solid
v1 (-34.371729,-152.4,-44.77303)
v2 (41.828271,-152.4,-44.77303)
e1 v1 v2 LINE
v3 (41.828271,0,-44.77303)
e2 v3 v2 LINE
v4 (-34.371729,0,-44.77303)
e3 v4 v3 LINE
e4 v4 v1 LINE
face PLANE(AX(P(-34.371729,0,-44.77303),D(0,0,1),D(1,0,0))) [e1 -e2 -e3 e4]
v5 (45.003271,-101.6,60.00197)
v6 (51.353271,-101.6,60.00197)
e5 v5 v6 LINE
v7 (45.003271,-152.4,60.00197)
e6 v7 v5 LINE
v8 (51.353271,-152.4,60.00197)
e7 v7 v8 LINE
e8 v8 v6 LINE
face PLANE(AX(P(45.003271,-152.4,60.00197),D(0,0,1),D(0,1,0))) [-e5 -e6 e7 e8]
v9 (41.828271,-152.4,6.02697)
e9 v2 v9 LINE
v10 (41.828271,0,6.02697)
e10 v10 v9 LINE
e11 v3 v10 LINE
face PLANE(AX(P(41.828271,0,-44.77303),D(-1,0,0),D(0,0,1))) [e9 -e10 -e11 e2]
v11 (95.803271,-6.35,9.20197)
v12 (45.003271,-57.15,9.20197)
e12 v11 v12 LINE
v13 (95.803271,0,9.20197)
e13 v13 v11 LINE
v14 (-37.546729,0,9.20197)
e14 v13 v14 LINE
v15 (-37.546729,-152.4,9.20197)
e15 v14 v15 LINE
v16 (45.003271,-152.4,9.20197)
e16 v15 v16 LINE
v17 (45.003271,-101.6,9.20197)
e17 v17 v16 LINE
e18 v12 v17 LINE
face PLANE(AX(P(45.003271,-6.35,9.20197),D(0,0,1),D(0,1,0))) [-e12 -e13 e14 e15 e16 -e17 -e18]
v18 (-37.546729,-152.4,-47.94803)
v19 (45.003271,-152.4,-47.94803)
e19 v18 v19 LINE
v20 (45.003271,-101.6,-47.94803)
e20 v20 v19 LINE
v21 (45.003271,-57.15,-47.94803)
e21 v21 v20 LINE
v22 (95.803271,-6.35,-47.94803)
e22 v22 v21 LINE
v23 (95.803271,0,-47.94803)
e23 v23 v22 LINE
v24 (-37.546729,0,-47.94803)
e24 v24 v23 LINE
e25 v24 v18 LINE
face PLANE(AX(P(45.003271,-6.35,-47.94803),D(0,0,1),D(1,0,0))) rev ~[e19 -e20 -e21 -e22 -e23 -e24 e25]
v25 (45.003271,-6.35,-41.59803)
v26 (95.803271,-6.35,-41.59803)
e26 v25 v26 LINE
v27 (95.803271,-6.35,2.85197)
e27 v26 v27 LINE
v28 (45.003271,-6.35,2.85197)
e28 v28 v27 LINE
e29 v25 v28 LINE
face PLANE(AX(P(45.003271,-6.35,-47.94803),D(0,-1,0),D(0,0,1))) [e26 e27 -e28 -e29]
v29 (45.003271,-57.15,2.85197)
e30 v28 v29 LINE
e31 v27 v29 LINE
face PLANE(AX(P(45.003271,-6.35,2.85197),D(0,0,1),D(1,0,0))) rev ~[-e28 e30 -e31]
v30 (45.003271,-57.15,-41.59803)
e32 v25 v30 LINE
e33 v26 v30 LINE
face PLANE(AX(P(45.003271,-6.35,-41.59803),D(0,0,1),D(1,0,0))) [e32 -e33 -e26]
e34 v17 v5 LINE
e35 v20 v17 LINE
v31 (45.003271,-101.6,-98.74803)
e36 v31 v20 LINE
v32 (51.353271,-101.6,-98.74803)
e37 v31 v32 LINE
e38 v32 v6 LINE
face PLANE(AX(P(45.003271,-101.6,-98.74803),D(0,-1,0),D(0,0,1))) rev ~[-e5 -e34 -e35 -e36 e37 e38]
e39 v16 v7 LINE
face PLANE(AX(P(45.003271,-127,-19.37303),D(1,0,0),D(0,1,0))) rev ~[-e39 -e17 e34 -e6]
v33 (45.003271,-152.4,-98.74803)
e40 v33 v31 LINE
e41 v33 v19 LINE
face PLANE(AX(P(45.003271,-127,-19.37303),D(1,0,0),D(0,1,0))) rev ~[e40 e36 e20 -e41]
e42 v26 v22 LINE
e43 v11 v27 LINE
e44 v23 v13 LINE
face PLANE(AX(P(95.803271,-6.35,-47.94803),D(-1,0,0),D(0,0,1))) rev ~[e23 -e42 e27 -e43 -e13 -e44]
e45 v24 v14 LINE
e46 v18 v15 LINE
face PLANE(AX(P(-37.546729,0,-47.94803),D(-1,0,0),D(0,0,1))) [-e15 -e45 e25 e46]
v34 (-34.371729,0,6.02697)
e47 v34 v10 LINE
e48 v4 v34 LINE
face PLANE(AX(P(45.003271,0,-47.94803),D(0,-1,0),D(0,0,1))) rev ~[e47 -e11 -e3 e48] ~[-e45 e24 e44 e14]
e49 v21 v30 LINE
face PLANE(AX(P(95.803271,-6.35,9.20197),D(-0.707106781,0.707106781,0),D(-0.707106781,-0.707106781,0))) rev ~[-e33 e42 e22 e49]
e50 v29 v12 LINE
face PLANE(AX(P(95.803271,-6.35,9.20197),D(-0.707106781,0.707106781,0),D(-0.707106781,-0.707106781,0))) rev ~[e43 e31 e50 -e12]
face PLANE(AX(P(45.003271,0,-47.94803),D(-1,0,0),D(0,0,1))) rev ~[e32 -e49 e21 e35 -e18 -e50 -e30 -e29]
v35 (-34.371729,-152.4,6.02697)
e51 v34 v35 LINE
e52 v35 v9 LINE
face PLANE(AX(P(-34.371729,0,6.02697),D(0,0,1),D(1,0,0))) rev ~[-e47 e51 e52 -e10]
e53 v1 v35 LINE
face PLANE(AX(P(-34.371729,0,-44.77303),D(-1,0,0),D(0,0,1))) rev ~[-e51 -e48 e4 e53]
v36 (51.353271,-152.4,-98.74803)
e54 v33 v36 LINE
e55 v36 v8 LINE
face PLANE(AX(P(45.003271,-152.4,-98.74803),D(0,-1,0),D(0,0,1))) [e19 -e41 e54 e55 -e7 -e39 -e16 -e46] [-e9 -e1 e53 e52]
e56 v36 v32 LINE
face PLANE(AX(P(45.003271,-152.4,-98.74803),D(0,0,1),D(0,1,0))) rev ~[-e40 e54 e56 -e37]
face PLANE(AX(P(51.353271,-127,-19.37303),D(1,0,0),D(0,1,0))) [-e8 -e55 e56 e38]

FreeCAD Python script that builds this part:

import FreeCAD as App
import Part
import Sketcher
from FreeCAD import Vector
Q = App.Units.Quantity


def add_polygon(sketch, points):
    """Adds a closed chain of lines whose ends are joined by coincident constraints."""
    first, n = sketch.GeometryCount, len(points)
    for a, b in zip(points, points[1:] + points[:1]):
        sketch.addGeometry(Part.LineSegment(App.Vector(*a, 0), App.Vector(*b, 0)), False)
    for i in range(n):
        sketch.addConstraint(Sketcher.Constraint("Coincident", first + i, 2, first + (i + 1) % n, 1))

doc = App.newDocument("Part")
body = doc.addObject("PartDesign::Body", "Body")

# Sketch on XZ plane
sketch1 = doc.addObject("Sketcher::SketchObject", "Sketch")
body.addObject(sketch1)
sketch1.AttachmentSupport = (doc.XZ_Plane, [""])
sketch1.MapMode = "FlatFace"
add_polygon(sketch1, [(-38, 9), (-38, -48), (45, -48), (45, 9)])  # lines 0-3
add_polygon(sketch1, [(42, -45), (-34, -45), (-34, 6), (42, 6)])  # lines 4-7
sketch1.addConstraint(Sketcher.Constraint("Vertical", 0))
sketch1.addConstraint(Sketcher.Constraint("Horizontal", 1))
sketch1.addConstraint(Sketcher.Constraint("Vertical", 2))
sketch1.addConstraint(Sketcher.Constraint("Horizontal", 3))
sketch1.addConstraint(Sketcher.Constraint("Horizontal", 4))
sketch1.addConstraint(Sketcher.Constraint("Vertical", 5))
sketch1.addConstraint(Sketcher.Constraint("Horizontal", 6))
sketch1.addConstraint(Sketcher.Constraint("Vertical", 7))
sketch1.addConstraint(Sketcher.Constraint("DistanceX", 4, 2, 4, 1, Q("3 in")))
sketch1.addConstraint(Sketcher.Constraint("DistanceY", 5, 1, 5, 2, Q("2 in")))
sketch1.addConstraint(Sketcher.Constraint("DistanceX", 1, 1, 1, 2, Q("3.25 in")))
sketch1.addConstraint(Sketcher.Constraint("DistanceY", 0, 2, 0, 1, Q("2.25 in")))
sketch1.addConstraint(Sketcher.Constraint("DistanceX", 0, 2, 4, 2, Q("0.125 in")))
sketch1.addConstraint(Sketcher.Constraint("DistanceY", 0, 2, 4, 2, Q("0.125 in")))
sketch1.addConstraint(Sketcher.Constraint("DistanceX", 0, 2, -1, 1, Q("37.546729 mm")))
sketch1.addConstraint(Sketcher.Constraint("DistanceY", 0, 2, -1, 1, Q("47.94803 mm")))
pad1 = doc.addObject("PartDesign::Pad", "Pad")
body.addObject(pad1)
pad1.Profile = sketch1
pad1.Length = Q("6 in")

# Sketch on YZ plane
sketch2 = doc.addObject("Sketcher::SketchObject", "Sketch001")
body.addObject(sketch2)
sketch2.AttachmentSupport = (doc.YZ_Plane, [""])
sketch2.MapMode = "FlatFace"
sketch2.AttachmentOffset = App.Placement(Vector(0, 0, 45.003271), App.Rotation())
add_polygon(sketch2, [(-6, 9), (-6, -48), (0, -48), (0, 9)])  # lines 0-3
sketch2.addConstraint(Sketcher.Constraint("Vertical", 0))
sketch2.addConstraint(Sketcher.Constraint("Horizontal", 1))
sketch2.addConstraint(Sketcher.Constraint("Vertical", 2))
sketch2.addConstraint(Sketcher.Constraint("Horizontal", 3))
sketch2.addConstraint(Sketcher.Constraint("PointOnObject", 1, 2, -2))
sketch2.addConstraint(Sketcher.Constraint("DistanceX", 1, 1, 1, 2, Q("0.25 in")))
sketch2.addConstraint(Sketcher.Constraint("DistanceY", 0, 2, 0, 1, Q("2.25 in")))
sketch2.addConstraint(Sketcher.Constraint("DistanceY", 0, 2, -1, 1, Q("47.94803 mm")))
pad2 = doc.addObject("PartDesign::Pad", "Pad001")
body.addObject(pad2)
pad2.Profile = sketch2
pad2.Length = Q("2 in")

# Sketch on XZ plane
sketch3 = doc.addObject("Sketcher::SketchObject", "Sketch002")
body.addObject(sketch3)
sketch3.AttachmentSupport = (doc.XZ_Plane, [""])
sketch3.MapMode = "FlatFace"
sketch3.AttachmentOffset = App.Placement(Vector(0, 0, 0.25 * 25.4), App.Rotation())
add_polygon(sketch3, [(45, -42), (45, -48), (96, -48), (96, -42)])  # lines 0-3
add_polygon(sketch3, [(45, 9), (45, 3), (96, 3), (96, 9)])  # lines 4-7
sketch3.addConstraint(Sketcher.Constraint("Vertical", 0))
sketch3.addConstraint(Sketcher.Constraint("Horizontal", 1))
sketch3.addConstraint(Sketcher.Constraint("Vertical", 2))
sketch3.addConstraint(Sketcher.Constraint("Horizontal", 3))
sketch3.addConstraint(Sketcher.Constraint("Vertical", 4))
sketch3.addConstraint(Sketcher.Constraint("Horizontal", 5))
sketch3.addConstraint(Sketcher.Constraint("Vertical", 6))
sketch3.addConstraint(Sketcher.Constraint("Horizontal", 7))
sketch3.addConstraint(Sketcher.Constraint("Vertical", 3, 2, 4, 2))
sketch3.addConstraint(Sketcher.Constraint("Vertical", 2, 2, 5, 2))
sketch3.addConstraint(Sketcher.Constraint("Equal", 2, 4))
sketch3.addConstraint(Sketcher.Constraint("DistanceX", 1, 1, 1, 2, Q("2 in")))
sketch3.addConstraint(Sketcher.Constraint("DistanceY", 0, 2, 4, 2, Q("2 in")))
sketch3.addConstraint(Sketcher.Constraint("DistanceY", 0, 2, 0, 1, Q("0.25 in")))
sketch3.addConstraint(Sketcher.Constraint("DistanceX", -1, 1, 0, 2, Q("45.003271 mm")))
sketch3.addConstraint(Sketcher.Constraint("DistanceY", 0, 2, -1, 1, Q("47.94803 mm")))
pad3 = doc.addObject("PartDesign::Pad", "Pad002")
body.addObject(pad3)
pad3.Profile = sketch3
pad3.Length = Q("2 in")

# Sketch on XY plane
sketch4 = doc.addObject("Sketcher::SketchObject", "Sketch003")
body.addObject(sketch4)
sketch4.AttachmentSupport = (doc.XY_Plane, [""])
sketch4.MapMode = "FlatFace"
sketch4.AttachmentOffset = App.Placement(Vector(0, 0, 9.20197), App.Rotation())
add_polygon(sketch4, [(96, -6), (45, -57), (96, -57)])  # lines 0-2
sketch4.addConstraint(Sketcher.Constraint("Horizontal", 1))
sketch4.addConstraint(Sketcher.Constraint("Vertical", 2))
sketch4.addConstraint(Sketcher.Constraint("Equal", 1, 2))
sketch4.addConstraint(Sketcher.Constraint("DistanceX", 1, 1, 1, 2, Q("2 in")))
sketch4.addConstraint(Sketcher.Constraint("DistanceY", 0, 2, -1, 1, Q("2.25 in")))
sketch4.addConstraint(Sketcher.Constraint("DistanceX", -1, 1, 0, 2, Q("45.003271 mm")))
pocket1 = doc.addObject("PartDesign::Pocket", "Pocket")
body.addObject(pocket1)
pocket1.Profile = sketch4
pocket1.Length = Q("4.67 in")

# Sketch on YZ plane
sketch5 = doc.addObject("Sketcher::SketchObject", "Sketch004")
body.addObject(sketch5)
sketch5.AttachmentSupport = (doc.YZ_Plane, [""])
sketch5.MapMode = "FlatFace"
sketch5.AttachmentOffset = App.Placement(Vector(0, 0, 45.003271), App.Rotation())
add_polygon(sketch5, [(-152, 60), (-152, -99), (-102, -99), (-102, 60)])  # lines 0-3
sketch5.addConstraint(Sketcher.Constraint("Vertical", 0))
sketch5.addConstraint(Sketcher.Constraint("Horizontal", 1))
sketch5.addConstraint(Sketcher.Constraint("Vertical", 2))
sketch5.addConstraint(Sketcher.Constraint("Horizontal", 3))
sketch5.addConstraint(Sketcher.Constraint("DistanceX", 1, 1, 1, 2, Q("2 in")))
sketch5.addConstraint(Sketcher.Constraint("DistanceX", 0, 2, -1, 1, Q("6 in")))
sketch5.addConstraint(Sketcher.Constraint("DistanceY", 0, 2, 0, 1, Q("6.25 in")))
sketch5.addConstraint(Sketcher.Constraint("DistanceY", 0, 2, -1, 1, Q("98.74803 mm")))
pad4 = doc.addObject("PartDesign::Pad", "Pad003")
body.addObject(pad4)
pad4.Profile = sketch5
pad4.Length = Q("0.25 in")

doc.recompute()
